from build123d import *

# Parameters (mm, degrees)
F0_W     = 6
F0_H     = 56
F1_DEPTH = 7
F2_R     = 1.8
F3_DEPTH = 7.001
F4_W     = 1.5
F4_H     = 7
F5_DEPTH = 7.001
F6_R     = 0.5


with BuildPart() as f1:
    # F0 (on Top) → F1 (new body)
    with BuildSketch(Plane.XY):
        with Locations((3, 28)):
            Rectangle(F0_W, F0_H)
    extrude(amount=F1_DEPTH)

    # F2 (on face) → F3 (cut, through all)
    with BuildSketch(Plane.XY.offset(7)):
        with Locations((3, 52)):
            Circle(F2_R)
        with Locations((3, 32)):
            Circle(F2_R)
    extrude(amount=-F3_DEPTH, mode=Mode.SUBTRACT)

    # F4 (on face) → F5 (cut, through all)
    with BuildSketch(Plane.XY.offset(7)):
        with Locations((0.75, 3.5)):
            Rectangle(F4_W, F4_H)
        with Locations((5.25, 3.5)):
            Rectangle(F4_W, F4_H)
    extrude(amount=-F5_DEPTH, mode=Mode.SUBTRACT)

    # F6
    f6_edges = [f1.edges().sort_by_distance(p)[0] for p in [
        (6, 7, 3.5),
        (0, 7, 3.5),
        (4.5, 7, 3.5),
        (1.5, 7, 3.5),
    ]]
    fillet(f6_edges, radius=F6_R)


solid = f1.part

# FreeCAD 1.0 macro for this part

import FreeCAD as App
import Part
import Sketcher

V = App.Vector
Q = App.Units.Quantity


def edges_at(feature, points):
    """Names of the edges that pass closest to the given points."""
    edges = feature.Shape.Edges
    near = lambda p: min(range(len(edges)), key=lambda i: edges[i].distToShape(Part.Vertex(*p))[0])
    return sorted({f"Edge{near(p) + 1}" for p in points})

doc = App.newDocument("Part")
params = doc.addObject("Spreadsheet::Sheet", "Params")
for row, (alias, value) in enumerate([
    ("sketch1_width", "6 mm"),
    ("sketch1_height", "56 mm"),
    ("pad1_length", "7 mm"),
    ("sketch2_diameter", "3.6 mm"),
    ("sketch3_height", "7 mm"),
    ("sketch3_width", "1.5 mm"),
    ("fillet_radius", "0.5 mm"),
], start=1):
    params.set(f"A{row}", alias)
    params.set(f"B{row}", "=" + value)
    params.setAlias(f"B{row}", alias)

body = doc.addObject("PartDesign::Body", "Body")

sketch1 = body.newObject("Sketcher::SketchObject", "Sketch")
sketch1.AttachmentSupport = (doc.getObject("XY_Plane"), [""])
sketch1.MapMode = "FlatFace"
sketch1.addGeometry([
    Part.LineSegment(V(0, 56, 0), V(0, 0, 0)),
    Part.LineSegment(V(0, 0, 0), V(6, 0, 0)),
    Part.LineSegment(V(6, 0, 0), V(6, 56, 0)),
    Part.LineSegment(V(6, 56, 0), V(0, 56, 0)),
], False)
sketch1.addConstraint([
    Sketcher.Constraint("Coincident", 0, 2, 1, 1),
    Sketcher.Constraint("Coincident", 1, 2, 2, 1),
    Sketcher.Constraint("Coincident", 2, 2, 3, 1),
    Sketcher.Constraint("Coincident", 3, 2, 0, 1),
    Sketcher.Constraint("Vertical", 0),
    Sketcher.Constraint("Horizontal", 1),
    Sketcher.Constraint("Vertical", 2),
    Sketcher.Constraint("Horizontal", 3),
    Sketcher.Constraint("Coincident", 0, 2, -1, 1),
    Sketcher.Constraint("DistanceX", 1, 1, 1, 2, Q("6 mm")),
    Sketcher.Constraint("DistanceY", 0, 2, 0, 1, Q("56 mm")),
])
sketch1.setExpression("Constraints[9]", "Params.sketch1_width")
sketch1.setExpression("Constraints[10]", "Params.sketch1_height")
pad1 = body.newObject("PartDesign::Pad", "Pad")
pad1.Profile = sketch1
pad1.setExpression("Length", "Params.pad1_length")

sketch2 = body.newObject("Sketcher::SketchObject", "Sketch001")
sketch2.AttachmentSupport = (doc.getObject("XY_Plane"), [""])
sketch2.MapMode = "FlatFace"
sketch2.AttachmentOffset = App.Placement(V(0, 0, 7), App.Rotation())
sketch2.addGeometry([
    Part.Circle(V(3, 52, 0), V(0, 0, 1), 1.8),
    Part.Circle(V(3, 32, 0), V(0, 0, 1), 1.8),
], False)
sketch2.addConstraint([
    Sketcher.Constraint("Equal", 0, 1),
    Sketcher.Constraint("Vertical", 0, 3, 1, 3),
    Sketcher.Constraint("Diameter", 0, Q("3.6 mm")),
    Sketcher.Constraint("DistanceX", -1, 1, 0, 3, Q("3 mm")),
    Sketcher.Constraint("DistanceY", -1, 1, 0, 3, Q("52 mm")),
    Sketcher.Constraint("DistanceY", -1, 1, 1, 3, Q("32 mm")),
])
sketch2.setExpression("Constraints[2]", "Params.sketch2_diameter")
pocket1 = body.newObject("PartDesign::Pocket", "Pocket")
pocket1.Profile = sketch2
pocket1.Type = "ThroughAll"

sketch3 = body.newObject("Sketcher::SketchObject", "Sketch002")
sketch3.AttachmentSupport = (doc.getObject("XY_Plane"), [""])
sketch3.MapMode = "FlatFace"
sketch3.AttachmentOffset = App.Placement(V(0, 0, 7), App.Rotation())
sketch3.addGeometry([
    Part.LineSegment(V(0, 7, 0), V(0, 0, 0)),
    Part.LineSegment(V(0, 0, 0), V(1.5, 0, 0)),
    Part.LineSegment(V(1.5, 0, 0), V(1.5, 7, 0)),
    Part.LineSegment(V(1.5, 7, 0), V(0, 7, 0)),
    Part.LineSegment(V(4.5, 7, 0), V(4.5, 0, 0)),
    Part.LineSegment(V(4.5, 0, 0), V(6, 0, 0)),
    Part.LineSegment(V(6, 0, 0), V(6, 7, 0)),
    Part.LineSegment(V(6, 7, 0), V(4.5, 7, 0)),
], False)
sketch3.addConstraint([
    Sketcher.Constraint("Coincident", 0, 2, 1, 1),
    Sketcher.Constraint("Coincident", 1, 2, 2, 1),
    Sketcher.Constraint("Coincident", 2, 2, 3, 1),
    Sketcher.Constraint("Coincident", 3, 2, 0, 1),
    Sketcher.Constraint("Coincident", 4, 2, 5, 1),
    Sketcher.Constraint("Coincident", 5, 2, 6, 1),
    Sketcher.Constraint("Coincident", 6, 2, 7, 1),
    Sketcher.Constraint("Coincident", 7, 2, 4, 1),
    Sketcher.Constraint("Vertical", 0),
    Sketcher.Constraint("Horizontal", 1),
    Sketcher.Constraint("Vertical", 2),
    Sketcher.Constraint("Horizontal", 3),
    Sketcher.Constraint("Vertical", 4),
    Sketcher.Constraint("Horizontal", 5),
    Sketcher.Constraint("Vertical", 6),
    Sketcher.Constraint("Horizontal", 7),
    Sketcher.Constraint("Coincident", 0, 2, -1, 1),
    Sketcher.Constraint("PointOnObject", 4, 2, -1),
    Sketcher.Constraint("Horizontal", 3, 2, 6, 2),
    Sketcher.Constraint("Equal", 3, 5),
    Sketcher.Constraint("DistanceY", 0, 2, 0, 1, Q("7 mm")),
    Sketcher.Constraint("DistanceX", 1, 1, 1, 2, Q("1.5 mm")),
    Sketcher.Constraint("DistanceX", -1, 1, 5, 2, Q("6 mm")),
])
sketch3.setExpression("Constraints[20]", "Params.sketch3_height")
sketch3.setExpression("Constraints[21]", "Params.sketch3_width")
pocket2 = body.newObject("PartDesign::Pocket", "Pocket001")
pocket2.Profile = sketch3
pocket2.Type = "ThroughAll"
doc.recompute()

fillet = body.newObject("PartDesign::Fillet", "Fillet")
fillet.Base = (pocket2, edges_at(pocket2, [
    (6, 7, 3.5),
    (0, 7, 3.5),
    (4.5, 7, 3.5),
    (1.5, 7, 3.5),
]))
fillet.setExpression("Radius", "Params.fillet_radius")

doc.recompute()
